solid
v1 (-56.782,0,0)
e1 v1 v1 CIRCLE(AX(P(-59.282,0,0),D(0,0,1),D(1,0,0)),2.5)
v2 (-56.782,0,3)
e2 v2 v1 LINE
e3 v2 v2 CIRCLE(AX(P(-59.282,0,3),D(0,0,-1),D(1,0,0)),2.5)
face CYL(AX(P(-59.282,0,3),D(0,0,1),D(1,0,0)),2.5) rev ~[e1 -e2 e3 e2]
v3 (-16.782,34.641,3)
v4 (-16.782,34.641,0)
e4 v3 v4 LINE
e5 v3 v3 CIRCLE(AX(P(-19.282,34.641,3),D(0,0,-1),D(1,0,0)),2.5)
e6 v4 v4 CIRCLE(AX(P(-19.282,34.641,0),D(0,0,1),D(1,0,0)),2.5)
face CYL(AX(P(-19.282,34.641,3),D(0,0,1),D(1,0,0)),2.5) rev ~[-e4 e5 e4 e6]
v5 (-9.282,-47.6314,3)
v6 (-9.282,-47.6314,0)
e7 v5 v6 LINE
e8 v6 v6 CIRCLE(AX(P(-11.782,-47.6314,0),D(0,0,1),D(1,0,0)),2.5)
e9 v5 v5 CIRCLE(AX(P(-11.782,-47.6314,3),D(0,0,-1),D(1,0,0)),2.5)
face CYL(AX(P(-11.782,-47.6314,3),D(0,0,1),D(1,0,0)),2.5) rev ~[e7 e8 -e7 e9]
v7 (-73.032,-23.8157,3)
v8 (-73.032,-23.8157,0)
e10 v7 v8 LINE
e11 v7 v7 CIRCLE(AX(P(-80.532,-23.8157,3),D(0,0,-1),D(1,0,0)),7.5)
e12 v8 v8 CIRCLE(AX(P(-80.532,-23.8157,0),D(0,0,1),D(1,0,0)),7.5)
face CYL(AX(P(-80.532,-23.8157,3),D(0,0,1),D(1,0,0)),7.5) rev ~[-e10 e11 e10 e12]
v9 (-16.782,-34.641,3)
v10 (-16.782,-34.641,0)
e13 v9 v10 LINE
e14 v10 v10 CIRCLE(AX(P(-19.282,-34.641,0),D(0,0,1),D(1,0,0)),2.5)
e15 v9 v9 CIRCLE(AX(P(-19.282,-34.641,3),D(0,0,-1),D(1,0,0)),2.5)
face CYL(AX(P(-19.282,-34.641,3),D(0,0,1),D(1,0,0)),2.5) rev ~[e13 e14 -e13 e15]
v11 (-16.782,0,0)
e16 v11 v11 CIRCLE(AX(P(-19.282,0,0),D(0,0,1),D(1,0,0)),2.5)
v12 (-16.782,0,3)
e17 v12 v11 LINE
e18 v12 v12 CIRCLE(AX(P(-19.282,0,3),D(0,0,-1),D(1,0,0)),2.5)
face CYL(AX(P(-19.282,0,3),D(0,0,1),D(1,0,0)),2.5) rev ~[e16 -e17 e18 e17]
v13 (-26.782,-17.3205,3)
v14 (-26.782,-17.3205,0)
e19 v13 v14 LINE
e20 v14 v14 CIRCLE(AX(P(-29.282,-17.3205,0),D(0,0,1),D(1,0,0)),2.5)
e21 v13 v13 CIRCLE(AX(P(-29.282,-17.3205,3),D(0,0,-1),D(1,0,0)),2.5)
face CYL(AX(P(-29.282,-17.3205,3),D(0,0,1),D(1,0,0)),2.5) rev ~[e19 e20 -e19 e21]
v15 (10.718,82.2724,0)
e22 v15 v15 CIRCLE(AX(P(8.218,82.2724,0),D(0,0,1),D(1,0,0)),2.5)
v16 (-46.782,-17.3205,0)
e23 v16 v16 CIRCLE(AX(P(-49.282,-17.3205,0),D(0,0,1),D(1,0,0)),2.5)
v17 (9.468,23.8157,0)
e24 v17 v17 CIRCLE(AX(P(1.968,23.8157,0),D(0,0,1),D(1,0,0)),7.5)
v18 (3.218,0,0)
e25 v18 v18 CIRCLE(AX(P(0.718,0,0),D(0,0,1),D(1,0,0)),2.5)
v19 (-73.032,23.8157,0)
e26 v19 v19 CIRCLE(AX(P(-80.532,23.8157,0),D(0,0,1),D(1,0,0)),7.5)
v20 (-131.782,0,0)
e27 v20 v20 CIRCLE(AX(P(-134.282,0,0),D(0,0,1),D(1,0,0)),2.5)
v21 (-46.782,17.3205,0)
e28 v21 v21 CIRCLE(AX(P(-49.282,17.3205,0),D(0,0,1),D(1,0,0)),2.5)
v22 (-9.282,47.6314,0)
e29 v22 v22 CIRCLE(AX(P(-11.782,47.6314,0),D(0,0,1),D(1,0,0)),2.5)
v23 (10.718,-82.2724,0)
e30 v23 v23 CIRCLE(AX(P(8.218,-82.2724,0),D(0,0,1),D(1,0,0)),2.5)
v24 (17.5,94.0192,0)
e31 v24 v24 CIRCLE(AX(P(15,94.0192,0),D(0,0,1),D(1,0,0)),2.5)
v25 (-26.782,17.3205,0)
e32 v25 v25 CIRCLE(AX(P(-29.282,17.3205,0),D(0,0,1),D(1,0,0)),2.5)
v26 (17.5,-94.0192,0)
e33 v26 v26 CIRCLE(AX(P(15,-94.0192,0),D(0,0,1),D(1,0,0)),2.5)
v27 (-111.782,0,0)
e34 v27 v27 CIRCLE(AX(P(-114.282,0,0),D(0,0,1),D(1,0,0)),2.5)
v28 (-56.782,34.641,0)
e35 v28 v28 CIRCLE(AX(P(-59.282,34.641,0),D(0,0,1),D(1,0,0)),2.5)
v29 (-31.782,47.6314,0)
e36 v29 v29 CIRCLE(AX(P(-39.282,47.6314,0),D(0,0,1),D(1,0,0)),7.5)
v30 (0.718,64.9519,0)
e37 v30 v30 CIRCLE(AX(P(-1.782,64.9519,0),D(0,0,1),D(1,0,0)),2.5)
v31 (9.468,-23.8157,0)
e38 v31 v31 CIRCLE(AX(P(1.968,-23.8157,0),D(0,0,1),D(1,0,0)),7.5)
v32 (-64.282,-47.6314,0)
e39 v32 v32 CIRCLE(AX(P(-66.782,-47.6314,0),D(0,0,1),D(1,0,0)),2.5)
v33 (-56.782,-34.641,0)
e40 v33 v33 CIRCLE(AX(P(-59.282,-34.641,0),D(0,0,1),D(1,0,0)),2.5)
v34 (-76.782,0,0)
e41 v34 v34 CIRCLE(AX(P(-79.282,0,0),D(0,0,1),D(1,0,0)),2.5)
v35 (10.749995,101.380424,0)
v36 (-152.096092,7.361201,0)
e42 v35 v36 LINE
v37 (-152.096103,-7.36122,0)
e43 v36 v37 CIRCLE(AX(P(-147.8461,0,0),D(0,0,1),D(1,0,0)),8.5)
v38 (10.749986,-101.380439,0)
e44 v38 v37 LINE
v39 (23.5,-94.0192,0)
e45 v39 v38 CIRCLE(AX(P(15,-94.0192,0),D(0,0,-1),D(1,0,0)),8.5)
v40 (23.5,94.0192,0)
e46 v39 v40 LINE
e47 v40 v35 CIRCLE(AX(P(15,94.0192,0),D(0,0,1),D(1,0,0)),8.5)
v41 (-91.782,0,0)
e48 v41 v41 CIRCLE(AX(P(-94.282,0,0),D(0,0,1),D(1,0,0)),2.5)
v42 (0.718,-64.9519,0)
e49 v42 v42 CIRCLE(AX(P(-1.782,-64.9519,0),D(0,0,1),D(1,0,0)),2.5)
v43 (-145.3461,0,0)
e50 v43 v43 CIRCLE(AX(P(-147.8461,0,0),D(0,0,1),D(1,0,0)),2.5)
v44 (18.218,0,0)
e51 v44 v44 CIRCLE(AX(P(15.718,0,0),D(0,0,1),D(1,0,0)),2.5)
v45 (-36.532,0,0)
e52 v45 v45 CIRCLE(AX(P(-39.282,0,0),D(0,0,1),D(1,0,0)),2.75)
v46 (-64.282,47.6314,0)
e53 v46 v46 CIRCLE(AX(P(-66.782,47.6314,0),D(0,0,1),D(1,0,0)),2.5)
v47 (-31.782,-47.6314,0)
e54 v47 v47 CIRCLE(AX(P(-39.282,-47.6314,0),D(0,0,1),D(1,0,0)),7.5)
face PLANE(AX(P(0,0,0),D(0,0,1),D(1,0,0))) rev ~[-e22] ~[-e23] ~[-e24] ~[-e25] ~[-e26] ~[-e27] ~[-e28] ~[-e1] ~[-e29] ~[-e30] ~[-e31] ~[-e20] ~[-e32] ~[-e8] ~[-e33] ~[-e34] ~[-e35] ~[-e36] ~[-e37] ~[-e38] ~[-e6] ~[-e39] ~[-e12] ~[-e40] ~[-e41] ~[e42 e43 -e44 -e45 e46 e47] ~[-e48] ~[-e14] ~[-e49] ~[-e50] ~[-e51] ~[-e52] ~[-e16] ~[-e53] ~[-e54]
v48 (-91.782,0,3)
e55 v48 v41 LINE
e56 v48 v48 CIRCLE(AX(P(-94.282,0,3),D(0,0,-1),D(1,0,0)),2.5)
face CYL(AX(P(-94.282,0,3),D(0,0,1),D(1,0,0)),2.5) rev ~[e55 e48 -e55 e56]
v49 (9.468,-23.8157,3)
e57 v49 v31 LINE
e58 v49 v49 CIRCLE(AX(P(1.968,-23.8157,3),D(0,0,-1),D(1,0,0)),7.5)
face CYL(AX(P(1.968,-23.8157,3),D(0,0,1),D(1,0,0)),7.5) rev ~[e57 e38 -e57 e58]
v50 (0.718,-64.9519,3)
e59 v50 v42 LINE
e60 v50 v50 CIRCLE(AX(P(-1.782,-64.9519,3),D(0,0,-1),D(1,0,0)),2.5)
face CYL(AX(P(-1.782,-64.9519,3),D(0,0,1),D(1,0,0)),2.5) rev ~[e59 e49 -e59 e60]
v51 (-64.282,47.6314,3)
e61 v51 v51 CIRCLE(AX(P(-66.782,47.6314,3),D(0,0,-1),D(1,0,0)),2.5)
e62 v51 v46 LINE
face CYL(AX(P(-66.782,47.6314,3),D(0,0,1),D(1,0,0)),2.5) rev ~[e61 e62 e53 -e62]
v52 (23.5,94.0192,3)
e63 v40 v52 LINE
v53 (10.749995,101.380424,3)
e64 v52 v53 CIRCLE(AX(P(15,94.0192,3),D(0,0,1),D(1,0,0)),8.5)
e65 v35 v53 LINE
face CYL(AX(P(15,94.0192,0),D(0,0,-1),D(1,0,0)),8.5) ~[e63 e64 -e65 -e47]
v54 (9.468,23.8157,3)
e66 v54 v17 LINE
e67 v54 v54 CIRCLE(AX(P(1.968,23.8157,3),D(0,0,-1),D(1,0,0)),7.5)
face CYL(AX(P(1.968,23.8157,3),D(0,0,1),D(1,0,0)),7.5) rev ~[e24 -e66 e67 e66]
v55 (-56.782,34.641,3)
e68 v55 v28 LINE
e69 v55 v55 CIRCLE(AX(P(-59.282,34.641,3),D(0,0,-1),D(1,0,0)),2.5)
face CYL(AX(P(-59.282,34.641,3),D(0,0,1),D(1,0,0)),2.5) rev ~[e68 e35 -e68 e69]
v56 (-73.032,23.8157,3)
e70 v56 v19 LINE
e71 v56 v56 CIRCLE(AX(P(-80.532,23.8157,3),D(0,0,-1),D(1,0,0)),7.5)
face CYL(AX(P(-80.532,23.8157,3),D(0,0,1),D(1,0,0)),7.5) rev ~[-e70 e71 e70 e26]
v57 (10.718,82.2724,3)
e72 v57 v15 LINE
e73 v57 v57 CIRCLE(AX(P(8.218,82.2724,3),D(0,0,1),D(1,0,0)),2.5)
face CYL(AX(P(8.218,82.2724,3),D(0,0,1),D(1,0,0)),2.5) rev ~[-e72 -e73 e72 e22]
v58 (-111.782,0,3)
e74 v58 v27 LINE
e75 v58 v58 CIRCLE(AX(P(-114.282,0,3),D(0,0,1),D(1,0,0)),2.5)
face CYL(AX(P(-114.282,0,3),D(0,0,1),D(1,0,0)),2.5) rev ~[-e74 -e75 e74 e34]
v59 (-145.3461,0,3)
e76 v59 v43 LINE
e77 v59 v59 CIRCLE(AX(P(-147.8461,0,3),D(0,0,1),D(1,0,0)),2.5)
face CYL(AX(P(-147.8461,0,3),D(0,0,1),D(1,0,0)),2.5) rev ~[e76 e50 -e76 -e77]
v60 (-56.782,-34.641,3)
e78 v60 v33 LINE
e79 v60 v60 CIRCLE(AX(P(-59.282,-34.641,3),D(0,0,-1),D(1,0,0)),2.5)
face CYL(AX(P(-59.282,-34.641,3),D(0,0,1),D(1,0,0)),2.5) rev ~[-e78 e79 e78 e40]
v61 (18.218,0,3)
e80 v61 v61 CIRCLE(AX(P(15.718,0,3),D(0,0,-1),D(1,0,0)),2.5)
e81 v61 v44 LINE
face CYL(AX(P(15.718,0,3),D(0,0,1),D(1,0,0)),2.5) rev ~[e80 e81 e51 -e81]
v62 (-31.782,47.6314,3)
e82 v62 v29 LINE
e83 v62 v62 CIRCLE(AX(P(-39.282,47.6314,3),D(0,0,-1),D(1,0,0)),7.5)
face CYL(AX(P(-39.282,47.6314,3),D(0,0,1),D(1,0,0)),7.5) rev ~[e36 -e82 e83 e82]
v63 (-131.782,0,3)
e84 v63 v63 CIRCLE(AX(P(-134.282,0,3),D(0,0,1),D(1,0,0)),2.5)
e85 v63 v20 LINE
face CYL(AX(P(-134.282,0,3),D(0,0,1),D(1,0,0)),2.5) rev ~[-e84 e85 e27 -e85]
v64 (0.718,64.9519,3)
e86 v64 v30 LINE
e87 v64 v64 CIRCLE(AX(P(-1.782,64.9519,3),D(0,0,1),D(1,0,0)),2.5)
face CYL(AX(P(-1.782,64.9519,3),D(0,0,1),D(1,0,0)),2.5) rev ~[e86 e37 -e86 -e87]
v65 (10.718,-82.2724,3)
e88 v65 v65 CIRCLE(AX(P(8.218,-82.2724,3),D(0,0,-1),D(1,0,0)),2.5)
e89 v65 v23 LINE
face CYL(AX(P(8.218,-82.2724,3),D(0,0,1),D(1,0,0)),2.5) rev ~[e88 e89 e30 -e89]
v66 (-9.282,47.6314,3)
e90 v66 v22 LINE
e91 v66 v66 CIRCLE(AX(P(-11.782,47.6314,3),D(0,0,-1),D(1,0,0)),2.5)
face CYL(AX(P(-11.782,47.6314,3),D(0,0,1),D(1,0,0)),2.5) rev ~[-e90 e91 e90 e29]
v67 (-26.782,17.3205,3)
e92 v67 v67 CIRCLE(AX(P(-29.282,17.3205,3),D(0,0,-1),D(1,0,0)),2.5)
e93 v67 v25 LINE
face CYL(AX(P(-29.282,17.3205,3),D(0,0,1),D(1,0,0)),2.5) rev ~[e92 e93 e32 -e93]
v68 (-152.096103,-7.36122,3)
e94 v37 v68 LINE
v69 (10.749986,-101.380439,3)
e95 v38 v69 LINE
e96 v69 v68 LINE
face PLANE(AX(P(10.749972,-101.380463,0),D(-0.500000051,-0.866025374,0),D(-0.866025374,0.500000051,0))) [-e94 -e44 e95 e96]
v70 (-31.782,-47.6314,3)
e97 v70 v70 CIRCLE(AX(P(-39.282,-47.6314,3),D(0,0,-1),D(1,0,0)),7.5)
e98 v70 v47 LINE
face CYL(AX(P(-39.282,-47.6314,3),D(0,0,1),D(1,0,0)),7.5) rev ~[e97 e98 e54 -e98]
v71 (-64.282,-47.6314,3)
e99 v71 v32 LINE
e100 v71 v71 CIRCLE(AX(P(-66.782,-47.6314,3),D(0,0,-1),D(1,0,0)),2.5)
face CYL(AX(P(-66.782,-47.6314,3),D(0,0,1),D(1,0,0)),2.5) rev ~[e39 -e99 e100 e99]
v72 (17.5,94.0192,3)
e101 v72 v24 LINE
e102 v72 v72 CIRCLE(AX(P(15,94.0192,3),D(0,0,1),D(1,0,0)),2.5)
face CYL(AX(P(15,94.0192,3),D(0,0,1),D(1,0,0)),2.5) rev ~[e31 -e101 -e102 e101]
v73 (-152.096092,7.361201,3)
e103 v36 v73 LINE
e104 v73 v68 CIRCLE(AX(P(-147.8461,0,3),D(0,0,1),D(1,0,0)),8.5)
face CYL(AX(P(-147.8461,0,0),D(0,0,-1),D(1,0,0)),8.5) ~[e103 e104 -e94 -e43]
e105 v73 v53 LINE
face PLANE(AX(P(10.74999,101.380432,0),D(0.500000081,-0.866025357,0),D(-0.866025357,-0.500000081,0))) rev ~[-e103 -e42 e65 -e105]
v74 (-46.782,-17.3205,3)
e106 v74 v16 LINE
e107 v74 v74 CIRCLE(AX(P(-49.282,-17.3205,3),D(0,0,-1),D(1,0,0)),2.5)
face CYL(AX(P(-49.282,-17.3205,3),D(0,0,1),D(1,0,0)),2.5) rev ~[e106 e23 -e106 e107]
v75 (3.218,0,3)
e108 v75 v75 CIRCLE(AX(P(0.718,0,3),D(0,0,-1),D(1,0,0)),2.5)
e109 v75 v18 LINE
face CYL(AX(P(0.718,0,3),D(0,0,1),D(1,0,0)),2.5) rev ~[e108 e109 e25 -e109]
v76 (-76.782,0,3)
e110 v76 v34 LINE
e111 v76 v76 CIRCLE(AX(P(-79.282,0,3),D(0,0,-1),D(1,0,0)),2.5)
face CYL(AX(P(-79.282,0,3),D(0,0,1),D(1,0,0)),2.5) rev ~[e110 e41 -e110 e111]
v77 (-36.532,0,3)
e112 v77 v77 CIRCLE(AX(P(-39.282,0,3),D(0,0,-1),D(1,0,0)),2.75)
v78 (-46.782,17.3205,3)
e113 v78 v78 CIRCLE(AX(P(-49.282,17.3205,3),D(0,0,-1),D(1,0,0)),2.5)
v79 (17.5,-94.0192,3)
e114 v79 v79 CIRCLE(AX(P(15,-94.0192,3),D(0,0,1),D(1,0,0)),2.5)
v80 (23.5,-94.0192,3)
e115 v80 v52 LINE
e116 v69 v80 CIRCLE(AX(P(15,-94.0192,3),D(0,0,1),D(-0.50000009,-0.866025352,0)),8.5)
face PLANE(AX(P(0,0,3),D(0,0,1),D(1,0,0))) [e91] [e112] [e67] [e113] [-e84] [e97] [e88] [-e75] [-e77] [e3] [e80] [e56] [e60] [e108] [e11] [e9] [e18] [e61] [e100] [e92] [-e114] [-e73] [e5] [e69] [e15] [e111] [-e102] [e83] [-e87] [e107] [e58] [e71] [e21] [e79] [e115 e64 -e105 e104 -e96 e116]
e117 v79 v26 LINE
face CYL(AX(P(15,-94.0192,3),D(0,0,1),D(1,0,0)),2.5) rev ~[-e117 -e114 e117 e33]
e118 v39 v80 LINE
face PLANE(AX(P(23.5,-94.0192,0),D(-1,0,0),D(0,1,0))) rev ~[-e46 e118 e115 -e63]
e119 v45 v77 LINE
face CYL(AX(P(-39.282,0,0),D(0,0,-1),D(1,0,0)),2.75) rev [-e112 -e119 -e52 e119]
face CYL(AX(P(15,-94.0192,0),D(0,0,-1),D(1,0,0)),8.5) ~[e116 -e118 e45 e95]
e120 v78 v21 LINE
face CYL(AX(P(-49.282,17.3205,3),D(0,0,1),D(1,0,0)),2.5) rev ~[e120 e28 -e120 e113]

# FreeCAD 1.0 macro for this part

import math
import FreeCAD as App
import Part
import Sketcher
Q = App.Units.Quantity

doc = App.newDocument("Part")
body = doc.addObject("PartDesign::Body", "Body")

# Sketch on XY plane
sketch1 = body.newObject("Sketcher::SketchObject", "Sketch")
sketch1.AttachmentSupport = (doc.getObject("XY_Plane"), [""])
sketch1.MapMode = "FlatFace"
sketch1.addGeometry([
    Part.LineSegment(App.Vector(10.749995, 101.380424, 0), App.Vector(-152.096092, 7.361201, 0)),  # 0
    Part.ArcOfCircle(Part.Circle(App.Vector(-147.8461, 0, 0), App.Vector(0, 0, 1), 8.5), math.radians(120.000005), math.radians(239.999997)),  # 1
    Part.LineSegment(App.Vector(-152.096105, -7.361223, 0), App.Vector(10.749972, -101.380463, 0)),  # 2
    Part.ArcOfCircle(Part.Circle(App.Vector(15, -94.0192, 0), App.Vector(0, 0, 1), 8.5), math.radians(-120.000006), math.radians(0)),  # 3
    Part.LineSegment(App.Vector(23.5, -94.0192, 0), App.Vector(23.5, 94.0192, 0)),  # 4
    Part.ArcOfCircle(Part.Circle(App.Vector(15, 94.0192, 0), App.Vector(0, 0, 1), 8.5), math.radians(0), math.radians(120.000005)),  # 5
    Part.Circle(App.Vector(-39.282, 0, 0), App.Vector(0, 0, 1), 2.75),  # 6
], False)
sketch1.addConstraint([
    Sketcher.Constraint("Tangent", 0, 2, 1, 1),
    Sketcher.Constraint("Tangent", 1, 2, 2, 1),
    Sketcher.Constraint("Tangent", 2, 2, 3, 1),
    Sketcher.Constraint("Tangent", 3, 2, 4, 1),
    Sketcher.Constraint("Tangent", 4, 2, 5, 1),
    Sketcher.Constraint("Tangent", 5, 2, 0, 1),
    Sketcher.Constraint("Vertical", 4),
    Sketcher.Constraint("Equal", 1, 3),
    Sketcher.Constraint("Equal", 3, 5),
    Sketcher.Constraint("Symmetric", 0, 2, 1, 2, -1),
    Sketcher.Constraint("PointOnObject", 6, 3, -1),
    Sketcher.Constraint("Diameter", 6, Q("5.5 mm")),
    Sketcher.Constraint("Radius", 1, Q("8.5 mm")),
    Sketcher.Constraint("Angle", 0, Q("-150 deg")),
    Sketcher.Constraint("DistanceX", -1, 1, 3, 3, Q("15 mm")),
    Sketcher.Constraint("DistanceY", 4, 1, 4, 2, Q("188.0384 mm")),
    Sketcher.Constraint("DistanceX", 6, 3, -1, 1, Q("39.282 mm")),
])
pad1 = body.newObject("PartDesign::Pad", "Pad")
pad1.Profile = sketch1
pad1.Length = 3

# Sketch on XY plane
sketch2 = body.newObject("Sketcher::SketchObject", "Sketch001")
sketch2.AttachmentSupport = (doc.getObject("XY_Plane"), [""])
sketch2.MapMode = "FlatFace"
sketch2.AttachmentOffset = App.Placement(App.Vector(0, 0, 3), App.Rotation())
sketch2.addGeometry([
    Part.Circle(App.Vector(-147.8461, 0, 0), App.Vector(0, 0, 1), 2.5),
    Part.Circle(App.Vector(15, 94.0192, 0), App.Vector(0, 0, 1), 2.5),
    Part.Circle(App.Vector(15, -94.0192, 0), App.Vector(0, 0, 1), 2.5),
], False)
sketch2.addConstraint([
    Sketcher.Constraint("Equal", 0, 1),
    Sketcher.Constraint("Equal", 1, 2),
    Sketcher.Constraint("Symmetric", 1, 3, 2, 3, -1),
    Sketcher.Constraint("PointOnObject", 0, 3, -1),
    Sketcher.Constraint("Diameter", 0, Q("5 mm")),
    Sketcher.Constraint("DistanceX", -1, 1, 1, 3, Q("15 mm")),
    Sketcher.Constraint("DistanceX", 0, 3, -1, 1, Q("147.846 mm")),
    Sketcher.Constraint("DistanceY", -1, 1, 1, 3, Q("94.0192 mm")),
])
pocket1 = body.newObject("PartDesign::Pocket", "Pocket")
pocket1.Profile = sketch2
pocket1.Length = 3

# Sketch on XY plane
sketch3 = body.newObject("Sketcher::SketchObject", "Sketch002")
sketch3.AttachmentSupport = (doc.getObject("XY_Plane"), [""])
sketch3.MapMode = "FlatFace"
sketch3.AttachmentOffset = App.Placement(App.Vector(0, 0, 3), App.Rotation())
sketch3.addGeometry([
    Part.Circle(App.Vector(-29.282, 17.3205, 0), App.Vector(0, 0, 1), 2.5),  # 0
    Part.Circle(App.Vector(-19.282, 0, 0), App.Vector(0, 0, 1), 2.5),  # 1
    Part.Circle(App.Vector(-29.282, -17.3205, 0), App.Vector(0, 0, 1), 2.5),  # 2
    Part.Circle(App.Vector(-49.282, 17.3205, 0), App.Vector(0, 0, 1), 2.5),  # 3
    Part.Circle(App.Vector(-59.282, 0, 0), App.Vector(0, 0, 1), 2.5),  # 4
    Part.Circle(App.Vector(-19.282, 34.641, 0), App.Vector(0, 0, 1), 2.5),  # 5
    Part.Circle(App.Vector(0.718, 0, 0), App.Vector(0, 0, 1), 2.5),  # 6
    Part.Circle(App.Vector(1.968, 23.8157, 0), App.Vector(0, 0, 1), 7.5),  # 7
    Part.Circle(App.Vector(-49.282, -17.3205, 0), App.Vector(0, 0, 1), 2.5),  # 8
    Part.Circle(App.Vector(-19.282, -34.641, 0), App.Vector(0, 0, 1), 2.5),  # 9
    Part.Circle(App.Vector(1.968, -23.8157, 0), App.Vector(0, 0, 1), 7.5),  # 10
    Part.Circle(App.Vector(-59.282, 34.641, 0), App.Vector(0, 0, 1), 2.5),  # 11
    Part.Circle(App.Vector(-39.282, 47.6314, 0), App.Vector(0, 0, 1), 7.5),  # 12
    Part.Circle(App.Vector(8.218, -82.2724, 0), App.Vector(0, 0, 1), 2.5),  # 13
    Part.Circle(App.Vector(-1.782, -64.9519, 0), App.Vector(0, 0, 1), 2.5),  # 14
    Part.Circle(App.Vector(-59.282, -34.641, 0), App.Vector(0, 0, 1), 2.5),  # 15
    Part.Circle(App.Vector(-39.282, -47.6314, 0), App.Vector(0, 0, 1), 7.5),  # 16
    Part.Circle(App.Vector(-79.282, 0, 0), App.Vector(0, 0, 1), 2.5),  # 17
    Part.Circle(App.Vector(-80.532, 23.8157, 0), App.Vector(0, 0, 1), 7.5),  # 18
    Part.Circle(App.Vector(-80.532, -23.8157, 0), App.Vector(0, 0, 1), 7.5),  # 19
    Part.Circle(App.Vector(-11.782, 47.6314, 0), App.Vector(0, 0, 1), 2.5),  # 20
    Part.Circle(App.Vector(15.718, 0, 0), App.Vector(0, 0, 1), 2.5),  # 21
    Part.Circle(App.Vector(-11.782, -47.6314, 0), App.Vector(0, 0, 1), 2.5),  # 22
    Part.Circle(App.Vector(-66.782, 47.6314, 0), App.Vector(0, 0, 1), 2.5),  # 23
    Part.Circle(App.Vector(-66.782, -47.6314, 0), App.Vector(0, 0, 1), 2.5),  # 24
    Part.Circle(App.Vector(-94.282, 0, 0), App.Vector(0, 0, 1), 2.5),  # 25
    Part.Circle(App.Vector(-1.782, 64.9519, 0), App.Vector(0, 0, 1), 2.5),  # 26
    Part.Circle(App.Vector(8.218, 82.2724, 0), App.Vector(0, 0, 1), 2.5),  # 27
    Part.Circle(App.Vector(-114.282, 0, 0), App.Vector(0, 0, 1), 2.5),  # 28
    Part.Circle(App.Vector(-134.282, 0, 0), App.Vector(0, 0, 1), 2.5),  # 29
], False)
sketch3.addConstraint([
    Sketcher.Constraint("Equal", 0, 1),
    Sketcher.Constraint("Equal", 1, 2),
    Sketcher.Constraint("Equal", 2, 3),
    Sketcher.Constraint("Equal", 3, 4),
    Sketcher.Constraint("Equal", 4, 5),
    Sketcher.Constraint("Equal", 5, 6),
    Sketcher.Constraint("Equal", 6, 8),
    Sketcher.Constraint("Equal", 8, 9),
    Sketcher.Constraint("Equal", 7, 10),
    Sketcher.Constraint("Equal", 9, 11),
    Sketcher.Constraint("Equal", 10, 12),
    Sketcher.Constraint("Equal", 11, 13),
    Sketcher.Constraint("Equal", 13, 14),
    Sketcher.Constraint("Equal", 14, 15),
    Sketcher.Constraint("Equal", 12, 16),
    Sketcher.Constraint("Equal", 15, 17),
    Sketcher.Constraint("Equal", 16, 18),
    Sketcher.Constraint("Equal", 18, 19),
    Sketcher.Constraint("Equal", 17, 20),
    Sketcher.Constraint("Equal", 20, 21),
    Sketcher.Constraint("Equal", 21, 22),
    Sketcher.Constraint("Equal", 22, 23),
    Sketcher.Constraint("Equal", 23, 24),
    Sketcher.Constraint("Equal", 24, 25),
    Sketcher.Constraint("Equal", 25, 26),
    Sketcher.Constraint("Equal", 26, 27),
    Sketcher.Constraint("Equal", 27, 28),
    Sketcher.Constraint("Equal", 28, 29),
    Sketcher.Constraint("Symmetric", 0, 3, 2, 3, -1),
    Sketcher.Constraint("Symmetric", 3, 3, 8, 3, -1),
    Sketcher.Constraint("Symmetric", 5, 3, 9, 3, -1),
    Sketcher.Constraint("Symmetric", 7, 3, 10, 3, -1),
    Sketcher.Constraint("Symmetric", 11, 3, 15, 3, -1),
    Sketcher.Constraint("Symmetric", 12, 3, 16, 3, -1),
    Sketcher.Constraint("Symmetric", 18, 3, 19, 3, -1),
    Sketcher.Constraint("Symmetric", 20, 3, 22, 3, -1),
    Sketcher.Constraint("Symmetric", 23, 3, 24, 3, -1),
    Sketcher.Constraint("Symmetric", 14, 3, 26, 3, -1),
    Sketcher.Constraint("Symmetric", 13, 3, 27, 3, -1),
    Sketcher.Constraint("PointOnObject", 1, 3, -1),
    Sketcher.Constraint("PointOnObject", 4, 3, -1),
    Sketcher.Constraint("PointOnObject", 6, 3, -1),
    Sketcher.Constraint("PointOnObject", 17, 3, -1),
    Sketcher.Constraint("PointOnObject", 21, 3, -1),
    Sketcher.Constraint("PointOnObject", 25, 3, -1),
    Sketcher.Constraint("PointOnObject", 28, 3, -1),
    Sketcher.Constraint("PointOnObject", 29, 3, -1),
    Sketcher.Constraint("Horizontal", 0, 3, 3, 3),
    Sketcher.Constraint("Horizontal", 5, 3, 11, 3),
    Sketcher.Constraint("Horizontal", 7, 3, 18, 3),
    Sketcher.Constraint("Horizontal", 12, 3, 20, 3),
    Sketcher.Constraint("Horizontal", 20, 3, 23, 3),
    Sketcher.Constraint("Vertical", 1, 3, 5, 3),
    Sketcher.Constraint("Vertical", 4, 3, 11, 3),
    Sketcher.Constraint("Diameter", 0, Q("5 mm")),
    Sketcher.Constraint("Diameter", 7, Q("15 mm")),
    Sketcher.Constraint("DistanceX", 3, 3, 0, 3, Q("20 mm")),
    Sketcher.Constraint("DistanceX", 1, 3, 6, 3, Q("20 mm")),
    Sketcher.Constraint("DistanceX", 12, 3, 5, 3, Q("20 mm")),
    Sketcher.Constraint("DistanceX", 11, 3, 12, 3, Q("20 mm")),
    Sketcher.Constraint("DistanceX", 17, 3, 4, 3, Q("20 mm")),
    Sketcher.Constraint("DistanceX", 6, 3, 21, 3, Q("15 mm")),
    Sketcher.Constraint("DistanceX", 25, 3, 17, 3, Q("15 mm")),
    Sketcher.Constraint("DistanceX", 20, 3, 27, 3, Q("20 mm")),
    Sketcher.Constraint("DistanceX", 28, 3, 25, 3, Q("20 mm")),
    Sketcher.Constraint("DistanceX", 29, 3, 28, 3, Q("20 mm")),
    Sketcher.Constraint("DistanceX", 0, 3, 1, 3, Q("10 mm")),
    Sketcher.Constraint("DistanceX", 14, 3, 13, 3, Q("10 mm")),
    Sketcher.Constraint("DistanceY", -1, 1, 0, 3, Q("17.3205 mm")),
    Sketcher.Constraint("DistanceY", 0, 3, 5, 3, Q("17.3205 mm")),
    Sketcher.Constraint("DistanceX", 9, 3, 13, 3, Q("27.5 mm")),
    Sketcher.Constraint("DistanceY", 13, 3, 14, 3, Q("17.3205 mm")),
    Sketcher.Constraint("DistanceY", 14, 3, 16, 3, Q("17.3205 mm")),
    Sketcher.Constraint("DistanceX", 23, 3, 11, 3, Q("7.5 mm")),
    Sketcher.Constraint("DistanceX", 5, 3, 7, 3, Q("21.25 mm")),
    Sketcher.Constraint("DistanceX", 18, 3, 11, 3, Q("21.25 mm")),
    Sketcher.Constraint("DistanceX", 0, 3, -1, 1, Q("29.282 mm")),
    Sketcher.Constraint("DistanceY", 14, 3, -1, 1, Q("64.952 mm")),
    Sketcher.Constraint("DistanceY", -1, 1, 7, 3, Q("23.8157 mm")),
])
pocket2 = body.newObject("PartDesign::Pocket", "Pocket001")
pocket2.Profile = sketch3
pocket2.Length = 3

doc.recompute()
